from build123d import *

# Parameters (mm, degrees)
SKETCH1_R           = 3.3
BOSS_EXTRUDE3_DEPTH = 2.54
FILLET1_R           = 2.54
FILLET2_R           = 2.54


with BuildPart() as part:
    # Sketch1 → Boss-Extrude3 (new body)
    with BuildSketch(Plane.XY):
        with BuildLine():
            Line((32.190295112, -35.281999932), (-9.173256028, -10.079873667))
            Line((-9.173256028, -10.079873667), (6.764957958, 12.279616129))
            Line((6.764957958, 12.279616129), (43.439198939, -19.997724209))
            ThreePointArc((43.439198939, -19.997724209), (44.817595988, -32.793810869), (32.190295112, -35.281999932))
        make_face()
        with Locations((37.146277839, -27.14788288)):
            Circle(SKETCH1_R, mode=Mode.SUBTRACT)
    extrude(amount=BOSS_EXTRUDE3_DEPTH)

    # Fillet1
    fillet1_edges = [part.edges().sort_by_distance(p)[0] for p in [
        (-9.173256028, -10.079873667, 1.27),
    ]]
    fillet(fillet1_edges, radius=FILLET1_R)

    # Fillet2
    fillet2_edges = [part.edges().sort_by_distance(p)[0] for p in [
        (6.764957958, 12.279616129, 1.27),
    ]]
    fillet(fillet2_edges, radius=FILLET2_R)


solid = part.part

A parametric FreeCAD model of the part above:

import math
import FreeCAD as App
import Part
import Sketcher

V = App.Vector
Q = App.Units.Quantity


def edges_at(feature, points):
    """Names of the edges that pass closest to the given points."""
    edges = feature.Shape.Edges
    near = lambda p: min(range(len(edges)), key=lambda i: edges[i].distToShape(Part.Vertex(*p))[0])
    return sorted({f"Edge{near(p) + 1}" for p in points})

doc = App.newDocument("Part")
body = doc.addObject("PartDesign::Body", "Body")

# Sketch on XY plane
sketch1 = body.newObject("Sketcher::SketchObject", "Sketch")
sketch1.AttachmentSupport = (doc.getObject("XY_Plane"), [""])
sketch1.MapMode = "FlatFace"
sketch1.addGeometry([
    Part.LineSegment(V(-9.173256, -10.079874, 0), V(32.190295, -35.282, 0)),  # 0
    Part.ArcOfCircle(Part.Circle(V(37.146278, -27.147883, 0), V(0, 0, 1), 9.525), math.radians(-121.353259), math.radians(48.648694)),  # 1
    Part.LineSegment(V(43.439199, -19.997724, 0), V(6.764958, 12.279616, 0)),  # 2
    Part.LineSegment(V(6.764958, 12.279616, 0), V(-9.173256, -10.079874, 0)),  # 3
    Part.Circle(V(37.146278, -27.147883, 0), V(0, 0, 1), 3.3),  # 4
], False)
sketch1.addConstraint([
    Sketcher.Constraint("Tangent", 0, 2, 1, 1),
    Sketcher.Constraint("Tangent", 1, 2, 2, 1),
    Sketcher.Constraint("Coincident", 2, 2, 3, 1),
    Sketcher.Constraint("Coincident", 3, 2, 0, 1),
    Sketcher.Constraint("Coincident", 4, 3, 1, 3),
    Sketcher.Constraint("Radius", 1, Q("0.375 in")),
    Sketcher.Constraint("Diameter", 4, Q("6.6 mm")),
    Sketcher.Constraint("DistanceY", 0, 2, -1, 1, Q("35.282 mm")),
    Sketcher.Constraint("DistanceX", -1, 1, 1, 2, Q("43.439199 mm")),
    Sketcher.Constraint("DistanceY", 1, 3, 2, 2, Q("39.427499 mm")),
    Sketcher.Constraint("Distance", 0, Q("48.436459 mm")),
    Sketcher.Constraint("Distance", 2, Q("48.85516 mm")),
    Sketcher.Constraint("DistanceY", 3, 2, 2, 2, Q("22.35949 mm")),
])
pad1 = body.newObject("PartDesign::Pad", "Pad")
pad1.Profile = sketch1
pad1.Length = Q("0.1 in")
doc.recompute()

fillet = body.newObject("PartDesign::Fillet", "Fillet")
fillet.Base = (pad1, edges_at(pad1, [(-9.173, -10.08, 1.27)]))
fillet.Radius = Q("0.1 in")
doc.recompute()

fillet2 = body.newObject("PartDesign::Fillet", "Fillet001")
fillet2.Base = (fillet, edges_at(fillet, [(6.765, 12.28, 1.27)]))
fillet2.Radius = Q("0.1 in")

doc.recompute()
